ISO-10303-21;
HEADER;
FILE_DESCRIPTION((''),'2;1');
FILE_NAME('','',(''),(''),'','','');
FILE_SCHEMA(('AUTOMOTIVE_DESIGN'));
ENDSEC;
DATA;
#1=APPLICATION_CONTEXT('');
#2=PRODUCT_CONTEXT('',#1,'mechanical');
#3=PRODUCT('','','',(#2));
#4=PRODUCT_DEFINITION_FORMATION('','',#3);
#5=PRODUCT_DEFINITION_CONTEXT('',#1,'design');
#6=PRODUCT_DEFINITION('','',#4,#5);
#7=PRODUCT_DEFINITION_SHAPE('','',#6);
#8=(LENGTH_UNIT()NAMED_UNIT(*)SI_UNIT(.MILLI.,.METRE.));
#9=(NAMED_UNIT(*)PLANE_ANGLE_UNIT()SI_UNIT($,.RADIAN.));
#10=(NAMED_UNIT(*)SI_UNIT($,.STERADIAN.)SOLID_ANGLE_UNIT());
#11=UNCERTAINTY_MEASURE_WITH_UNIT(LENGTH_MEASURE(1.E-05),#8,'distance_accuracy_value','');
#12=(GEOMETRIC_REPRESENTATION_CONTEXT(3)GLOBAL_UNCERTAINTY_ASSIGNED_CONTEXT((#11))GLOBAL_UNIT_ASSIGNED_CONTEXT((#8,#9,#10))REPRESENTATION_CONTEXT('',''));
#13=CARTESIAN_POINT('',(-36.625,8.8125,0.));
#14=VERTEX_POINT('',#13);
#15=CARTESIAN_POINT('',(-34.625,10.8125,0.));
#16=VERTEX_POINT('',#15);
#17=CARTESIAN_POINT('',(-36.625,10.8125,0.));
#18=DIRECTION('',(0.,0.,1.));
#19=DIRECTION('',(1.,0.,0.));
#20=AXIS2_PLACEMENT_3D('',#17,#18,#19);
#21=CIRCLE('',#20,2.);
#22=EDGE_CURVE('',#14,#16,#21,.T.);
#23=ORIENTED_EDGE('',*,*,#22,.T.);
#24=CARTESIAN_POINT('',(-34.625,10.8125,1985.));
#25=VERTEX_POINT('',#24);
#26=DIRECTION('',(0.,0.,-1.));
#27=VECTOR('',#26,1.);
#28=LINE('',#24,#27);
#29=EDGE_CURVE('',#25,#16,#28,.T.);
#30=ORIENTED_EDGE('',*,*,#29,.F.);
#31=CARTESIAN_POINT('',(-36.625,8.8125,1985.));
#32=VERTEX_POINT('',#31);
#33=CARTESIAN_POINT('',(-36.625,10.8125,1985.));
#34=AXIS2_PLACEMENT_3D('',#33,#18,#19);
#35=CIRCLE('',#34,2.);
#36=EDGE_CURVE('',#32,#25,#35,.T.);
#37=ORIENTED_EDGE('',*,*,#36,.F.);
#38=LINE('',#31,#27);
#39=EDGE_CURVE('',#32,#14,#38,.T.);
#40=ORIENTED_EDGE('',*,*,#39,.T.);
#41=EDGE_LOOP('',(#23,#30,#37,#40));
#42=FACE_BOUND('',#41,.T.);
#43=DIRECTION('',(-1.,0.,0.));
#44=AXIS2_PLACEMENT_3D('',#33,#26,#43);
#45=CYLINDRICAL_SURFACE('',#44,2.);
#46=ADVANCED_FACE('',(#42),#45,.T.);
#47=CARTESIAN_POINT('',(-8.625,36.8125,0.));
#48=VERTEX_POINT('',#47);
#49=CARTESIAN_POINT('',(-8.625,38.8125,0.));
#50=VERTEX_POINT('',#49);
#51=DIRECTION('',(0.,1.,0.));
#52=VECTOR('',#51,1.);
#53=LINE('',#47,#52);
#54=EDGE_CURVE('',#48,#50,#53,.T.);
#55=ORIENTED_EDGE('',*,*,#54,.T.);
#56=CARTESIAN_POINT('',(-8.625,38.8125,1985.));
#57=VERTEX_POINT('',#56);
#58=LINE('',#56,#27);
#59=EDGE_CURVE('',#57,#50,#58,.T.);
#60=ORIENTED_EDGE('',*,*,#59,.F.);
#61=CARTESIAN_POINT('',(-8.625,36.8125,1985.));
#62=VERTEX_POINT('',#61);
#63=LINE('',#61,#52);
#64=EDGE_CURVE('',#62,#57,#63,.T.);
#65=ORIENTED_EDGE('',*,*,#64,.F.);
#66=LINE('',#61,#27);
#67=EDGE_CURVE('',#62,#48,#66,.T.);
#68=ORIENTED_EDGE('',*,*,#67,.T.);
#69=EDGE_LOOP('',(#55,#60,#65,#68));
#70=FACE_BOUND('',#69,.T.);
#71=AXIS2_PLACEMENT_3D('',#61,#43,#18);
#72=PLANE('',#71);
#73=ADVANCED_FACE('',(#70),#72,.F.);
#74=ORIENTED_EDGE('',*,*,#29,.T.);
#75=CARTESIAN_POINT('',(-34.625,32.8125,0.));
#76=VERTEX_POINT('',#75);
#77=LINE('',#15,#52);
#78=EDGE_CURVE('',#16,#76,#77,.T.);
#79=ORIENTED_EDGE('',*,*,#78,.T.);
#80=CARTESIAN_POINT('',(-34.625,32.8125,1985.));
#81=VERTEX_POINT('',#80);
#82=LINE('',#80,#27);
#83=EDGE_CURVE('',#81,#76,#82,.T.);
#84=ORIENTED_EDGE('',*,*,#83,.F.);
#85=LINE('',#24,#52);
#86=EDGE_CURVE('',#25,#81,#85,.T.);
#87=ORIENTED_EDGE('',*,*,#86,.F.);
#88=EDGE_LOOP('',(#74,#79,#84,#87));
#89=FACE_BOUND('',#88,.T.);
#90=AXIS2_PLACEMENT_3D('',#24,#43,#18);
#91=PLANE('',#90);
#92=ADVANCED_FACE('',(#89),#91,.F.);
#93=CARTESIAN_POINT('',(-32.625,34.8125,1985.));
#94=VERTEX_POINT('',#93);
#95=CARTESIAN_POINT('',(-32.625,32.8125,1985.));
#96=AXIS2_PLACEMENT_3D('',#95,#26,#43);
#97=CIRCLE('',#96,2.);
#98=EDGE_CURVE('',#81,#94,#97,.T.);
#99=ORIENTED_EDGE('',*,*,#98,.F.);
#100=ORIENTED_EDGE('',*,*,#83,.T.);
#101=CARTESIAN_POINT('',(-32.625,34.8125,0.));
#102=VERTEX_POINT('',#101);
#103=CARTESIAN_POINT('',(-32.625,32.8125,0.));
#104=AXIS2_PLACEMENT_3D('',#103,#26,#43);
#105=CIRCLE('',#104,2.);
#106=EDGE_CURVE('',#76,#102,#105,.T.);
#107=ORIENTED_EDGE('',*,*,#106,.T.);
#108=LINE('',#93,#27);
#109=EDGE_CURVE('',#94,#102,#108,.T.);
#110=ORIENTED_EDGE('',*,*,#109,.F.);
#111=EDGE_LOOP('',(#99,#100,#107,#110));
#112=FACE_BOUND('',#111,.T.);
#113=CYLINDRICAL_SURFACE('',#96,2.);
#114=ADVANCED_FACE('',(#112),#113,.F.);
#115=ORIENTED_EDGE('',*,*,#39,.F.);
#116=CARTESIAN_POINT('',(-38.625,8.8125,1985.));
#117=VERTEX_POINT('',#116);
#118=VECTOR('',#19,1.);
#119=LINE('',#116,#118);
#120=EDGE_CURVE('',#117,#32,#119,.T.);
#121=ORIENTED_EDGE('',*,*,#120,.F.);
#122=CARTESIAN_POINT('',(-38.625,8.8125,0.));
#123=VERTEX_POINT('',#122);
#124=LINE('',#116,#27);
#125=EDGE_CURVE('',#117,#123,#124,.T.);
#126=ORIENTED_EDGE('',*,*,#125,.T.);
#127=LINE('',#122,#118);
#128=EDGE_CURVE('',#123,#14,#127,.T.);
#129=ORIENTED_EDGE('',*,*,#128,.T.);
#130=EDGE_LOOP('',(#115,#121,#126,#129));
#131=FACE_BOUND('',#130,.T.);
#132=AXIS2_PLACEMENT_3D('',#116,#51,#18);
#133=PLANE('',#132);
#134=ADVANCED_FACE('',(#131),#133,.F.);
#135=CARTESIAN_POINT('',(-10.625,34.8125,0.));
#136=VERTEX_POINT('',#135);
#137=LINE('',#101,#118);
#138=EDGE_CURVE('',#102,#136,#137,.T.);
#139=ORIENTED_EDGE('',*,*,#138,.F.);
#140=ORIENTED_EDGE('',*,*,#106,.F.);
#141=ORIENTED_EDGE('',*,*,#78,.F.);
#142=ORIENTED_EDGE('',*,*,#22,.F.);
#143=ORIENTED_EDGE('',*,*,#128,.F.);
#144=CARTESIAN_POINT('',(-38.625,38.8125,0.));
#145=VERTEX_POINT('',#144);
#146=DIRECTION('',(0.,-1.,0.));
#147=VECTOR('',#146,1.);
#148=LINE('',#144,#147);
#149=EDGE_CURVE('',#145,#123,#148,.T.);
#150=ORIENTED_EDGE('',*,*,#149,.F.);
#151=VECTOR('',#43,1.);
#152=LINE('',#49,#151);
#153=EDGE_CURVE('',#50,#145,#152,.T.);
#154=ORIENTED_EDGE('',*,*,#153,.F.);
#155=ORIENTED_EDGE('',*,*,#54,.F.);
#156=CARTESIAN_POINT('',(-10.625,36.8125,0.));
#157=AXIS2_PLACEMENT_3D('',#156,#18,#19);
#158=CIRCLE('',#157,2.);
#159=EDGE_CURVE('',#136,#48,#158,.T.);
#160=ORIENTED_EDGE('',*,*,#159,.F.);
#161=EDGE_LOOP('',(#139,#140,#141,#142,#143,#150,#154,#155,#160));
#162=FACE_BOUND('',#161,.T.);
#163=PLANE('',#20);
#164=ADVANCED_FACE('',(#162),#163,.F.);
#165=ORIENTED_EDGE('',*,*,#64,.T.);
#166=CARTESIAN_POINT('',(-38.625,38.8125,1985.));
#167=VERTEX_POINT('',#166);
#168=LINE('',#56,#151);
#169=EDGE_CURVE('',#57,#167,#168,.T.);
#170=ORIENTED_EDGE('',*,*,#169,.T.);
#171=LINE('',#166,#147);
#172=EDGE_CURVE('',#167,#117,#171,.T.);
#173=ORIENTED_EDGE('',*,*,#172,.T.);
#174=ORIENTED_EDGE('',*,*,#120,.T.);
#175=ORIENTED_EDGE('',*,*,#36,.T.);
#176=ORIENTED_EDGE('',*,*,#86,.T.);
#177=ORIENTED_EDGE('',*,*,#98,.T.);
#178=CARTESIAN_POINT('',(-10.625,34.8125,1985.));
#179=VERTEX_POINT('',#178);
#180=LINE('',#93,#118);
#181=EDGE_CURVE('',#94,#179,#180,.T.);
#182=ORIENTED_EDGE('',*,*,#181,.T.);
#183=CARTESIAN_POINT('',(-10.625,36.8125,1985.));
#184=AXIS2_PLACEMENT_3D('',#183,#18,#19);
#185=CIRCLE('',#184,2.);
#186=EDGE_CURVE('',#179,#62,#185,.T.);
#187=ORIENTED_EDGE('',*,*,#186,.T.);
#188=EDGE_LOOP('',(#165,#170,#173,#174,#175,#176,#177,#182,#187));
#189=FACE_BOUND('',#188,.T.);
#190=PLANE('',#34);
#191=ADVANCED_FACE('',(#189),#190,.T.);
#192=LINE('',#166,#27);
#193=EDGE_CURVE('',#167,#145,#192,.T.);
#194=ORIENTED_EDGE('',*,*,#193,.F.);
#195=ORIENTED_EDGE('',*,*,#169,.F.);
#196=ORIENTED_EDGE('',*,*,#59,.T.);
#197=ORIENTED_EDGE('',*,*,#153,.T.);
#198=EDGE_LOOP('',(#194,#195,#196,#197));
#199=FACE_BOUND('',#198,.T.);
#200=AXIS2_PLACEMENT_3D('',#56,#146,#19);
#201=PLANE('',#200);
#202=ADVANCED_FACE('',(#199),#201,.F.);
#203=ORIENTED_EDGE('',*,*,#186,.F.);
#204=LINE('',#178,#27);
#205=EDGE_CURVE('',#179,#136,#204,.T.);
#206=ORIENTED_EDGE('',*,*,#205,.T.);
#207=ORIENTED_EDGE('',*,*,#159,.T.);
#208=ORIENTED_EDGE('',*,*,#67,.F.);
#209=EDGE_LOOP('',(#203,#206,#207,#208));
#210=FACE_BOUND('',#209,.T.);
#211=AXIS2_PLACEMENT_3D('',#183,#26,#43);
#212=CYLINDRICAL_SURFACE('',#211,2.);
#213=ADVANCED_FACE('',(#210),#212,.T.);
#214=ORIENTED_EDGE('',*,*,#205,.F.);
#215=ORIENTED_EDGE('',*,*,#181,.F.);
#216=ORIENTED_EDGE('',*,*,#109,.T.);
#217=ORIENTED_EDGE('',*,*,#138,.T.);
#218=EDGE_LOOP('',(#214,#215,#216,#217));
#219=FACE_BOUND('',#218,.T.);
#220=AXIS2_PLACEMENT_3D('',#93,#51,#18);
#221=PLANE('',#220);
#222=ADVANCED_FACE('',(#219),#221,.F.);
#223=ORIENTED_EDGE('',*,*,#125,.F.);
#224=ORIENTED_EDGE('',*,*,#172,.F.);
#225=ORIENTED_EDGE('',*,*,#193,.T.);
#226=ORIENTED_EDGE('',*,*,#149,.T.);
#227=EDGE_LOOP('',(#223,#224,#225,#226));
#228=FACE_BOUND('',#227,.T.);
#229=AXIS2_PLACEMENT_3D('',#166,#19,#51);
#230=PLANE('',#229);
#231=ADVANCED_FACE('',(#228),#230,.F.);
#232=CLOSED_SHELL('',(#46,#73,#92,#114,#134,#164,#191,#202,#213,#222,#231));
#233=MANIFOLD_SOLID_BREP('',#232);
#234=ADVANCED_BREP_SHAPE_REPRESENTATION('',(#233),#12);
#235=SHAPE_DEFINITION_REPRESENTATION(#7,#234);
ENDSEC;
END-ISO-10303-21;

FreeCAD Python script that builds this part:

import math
import FreeCAD as App
import Part
import Sketcher
from FreeCAD import Vector
Q = App.Units.Quantity

doc = App.newDocument("Part")
params = doc.addObject("Spreadsheet::Sheet", "Params")
for row, (alias, value) in enumerate([
    ("sketch1_radius", "2 mm"),
    ("sketch1_width", "30 mm"),
    ("sketch1_width2", "2 mm"),
    ("pad1_length", "1985 mm"),
], start=1):
    params.set(f"A{row}", alias)
    params.set(f"B{row}", "=" + value)
    params.setAlias(f"B{row}", alias)

body = doc.addObject("PartDesign::Body", "Body")

sketch1 = body.newObject("Sketcher::SketchObject", "Sketch")
sketch1.AttachmentSupport = (doc.getObject("XY_Plane"), [""])
sketch1.MapMode = "FlatFace"
sketch1.addGeometry(Part.LineSegment(Vector(-8.6, 38.8, 0), Vector(-38.6, 38.8, 0)), False)
sketch1.addGeometry(Part.LineSegment(Vector(-38.6, 38.8, 0), Vector(-38.6, 8.8, 0)), False)
sketch1.addGeometry(Part.LineSegment(Vector(-38.6, 8.8, 0), Vector(-36.6, 8.8, 0)), False)
sketch1.addGeometry(Part.ArcOfCircle(Part.Circle(Vector(-36.6, 10.8, 0), Vector(0, 0, 1), 2), math.radians(-90), math.radians(0)), False)
sketch1.addGeometry(Part.LineSegment(Vector(-34.6, 10.8, 0), Vector(-34.6, 32.8, 0)), False)
sketch1.addGeometry(Part.ArcOfCircle(Part.Circle(Vector(-32.6, 32.8, 0), Vector(0, 0, 1), 2), math.radians(90), math.radians(180)), False)
sketch1.addGeometry(Part.LineSegment(Vector(-32.6, 34.8, 0), Vector(-10.6, 34.8, 0)), False)
sketch1.addGeometry(Part.ArcOfCircle(Part.Circle(Vector(-10.6, 36.8, 0), Vector(0, 0, 1), 2), math.radians(-90), math.radians(0)), False)
sketch1.addGeometry(Part.LineSegment(Vector(-8.6, 36.8, 0), Vector(-8.6, 38.8, 0)), False)
sketch1.addConstraint(Sketcher.Constraint("Coincident", 0, 2, 1, 1))
sketch1.addConstraint(Sketcher.Constraint("Coincident", 1, 2, 2, 1))
sketch1.addConstraint(Sketcher.Constraint("Tangent", 2, 2, 3, 1))
sketch1.addConstraint(Sketcher.Constraint("Tangent", 3, 2, 4, 1))
sketch1.addConstraint(Sketcher.Constraint("Tangent", 4, 2, 5, 2))
sketch1.addConstraint(Sketcher.Constraint("Tangent", 5, 1, 6, 1))
sketch1.addConstraint(Sketcher.Constraint("Tangent", 6, 2, 7, 1))
sketch1.addConstraint(Sketcher.Constraint("Tangent", 7, 2, 8, 1))
sketch1.addConstraint(Sketcher.Constraint("Coincident", 8, 2, 0, 1))
sketch1.addConstraint(Sketcher.Constraint("Horizontal", 0))
sketch1.addConstraint(Sketcher.Constraint("Vertical", 1))
sketch1.addConstraint(Sketcher.Constraint("Horizontal", 2))
sketch1.addConstraint(Sketcher.Constraint("Vertical", 4))
sketch1.addConstraint(Sketcher.Constraint("Horizontal", 6))
sketch1.addConstraint(Sketcher.Constraint("Vertical", 8))
sketch1.addConstraint(Sketcher.Constraint("Equal", 3, 5))
sketch1.addConstraint(Sketcher.Constraint("Equal", 5, 7))
sketch1.addConstraint(Sketcher.Constraint("Equal", 0, 1))
sketch1.addConstraint(Sketcher.Constraint("Equal", 6, 4))
sketch1.addConstraint(Sketcher.Constraint("Radius", 3, Q("2 mm")))
sketch1.addConstraint(Sketcher.Constraint("DistanceX", 0, 2, 0, 1, Q("30 mm")))
sketch1.addConstraint(Sketcher.Constraint("DistanceX", 2, 1, 2, 2, Q("2 mm")))
sketch1.addConstraint(Sketcher.Constraint("DistanceX", 3, 3, -1, 1, Q("36.625 mm")))
sketch1.addConstraint(Sketcher.Constraint("DistanceY", -1, 1, 3, 3, Q("10.8125 mm")))
sketch1.setExpression("Constraints[19]", "Params.sketch1_radius")
sketch1.setExpression("Constraints[20]", "Params.sketch1_width")
sketch1.setExpression("Constraints[21]", "Params.sketch1_width2")
pad1 = body.newObject("PartDesign::Pad", "Pad")
pad1.Profile = sketch1
pad1.setExpression("Length", "Params.pad1_length")

doc.recompute()
